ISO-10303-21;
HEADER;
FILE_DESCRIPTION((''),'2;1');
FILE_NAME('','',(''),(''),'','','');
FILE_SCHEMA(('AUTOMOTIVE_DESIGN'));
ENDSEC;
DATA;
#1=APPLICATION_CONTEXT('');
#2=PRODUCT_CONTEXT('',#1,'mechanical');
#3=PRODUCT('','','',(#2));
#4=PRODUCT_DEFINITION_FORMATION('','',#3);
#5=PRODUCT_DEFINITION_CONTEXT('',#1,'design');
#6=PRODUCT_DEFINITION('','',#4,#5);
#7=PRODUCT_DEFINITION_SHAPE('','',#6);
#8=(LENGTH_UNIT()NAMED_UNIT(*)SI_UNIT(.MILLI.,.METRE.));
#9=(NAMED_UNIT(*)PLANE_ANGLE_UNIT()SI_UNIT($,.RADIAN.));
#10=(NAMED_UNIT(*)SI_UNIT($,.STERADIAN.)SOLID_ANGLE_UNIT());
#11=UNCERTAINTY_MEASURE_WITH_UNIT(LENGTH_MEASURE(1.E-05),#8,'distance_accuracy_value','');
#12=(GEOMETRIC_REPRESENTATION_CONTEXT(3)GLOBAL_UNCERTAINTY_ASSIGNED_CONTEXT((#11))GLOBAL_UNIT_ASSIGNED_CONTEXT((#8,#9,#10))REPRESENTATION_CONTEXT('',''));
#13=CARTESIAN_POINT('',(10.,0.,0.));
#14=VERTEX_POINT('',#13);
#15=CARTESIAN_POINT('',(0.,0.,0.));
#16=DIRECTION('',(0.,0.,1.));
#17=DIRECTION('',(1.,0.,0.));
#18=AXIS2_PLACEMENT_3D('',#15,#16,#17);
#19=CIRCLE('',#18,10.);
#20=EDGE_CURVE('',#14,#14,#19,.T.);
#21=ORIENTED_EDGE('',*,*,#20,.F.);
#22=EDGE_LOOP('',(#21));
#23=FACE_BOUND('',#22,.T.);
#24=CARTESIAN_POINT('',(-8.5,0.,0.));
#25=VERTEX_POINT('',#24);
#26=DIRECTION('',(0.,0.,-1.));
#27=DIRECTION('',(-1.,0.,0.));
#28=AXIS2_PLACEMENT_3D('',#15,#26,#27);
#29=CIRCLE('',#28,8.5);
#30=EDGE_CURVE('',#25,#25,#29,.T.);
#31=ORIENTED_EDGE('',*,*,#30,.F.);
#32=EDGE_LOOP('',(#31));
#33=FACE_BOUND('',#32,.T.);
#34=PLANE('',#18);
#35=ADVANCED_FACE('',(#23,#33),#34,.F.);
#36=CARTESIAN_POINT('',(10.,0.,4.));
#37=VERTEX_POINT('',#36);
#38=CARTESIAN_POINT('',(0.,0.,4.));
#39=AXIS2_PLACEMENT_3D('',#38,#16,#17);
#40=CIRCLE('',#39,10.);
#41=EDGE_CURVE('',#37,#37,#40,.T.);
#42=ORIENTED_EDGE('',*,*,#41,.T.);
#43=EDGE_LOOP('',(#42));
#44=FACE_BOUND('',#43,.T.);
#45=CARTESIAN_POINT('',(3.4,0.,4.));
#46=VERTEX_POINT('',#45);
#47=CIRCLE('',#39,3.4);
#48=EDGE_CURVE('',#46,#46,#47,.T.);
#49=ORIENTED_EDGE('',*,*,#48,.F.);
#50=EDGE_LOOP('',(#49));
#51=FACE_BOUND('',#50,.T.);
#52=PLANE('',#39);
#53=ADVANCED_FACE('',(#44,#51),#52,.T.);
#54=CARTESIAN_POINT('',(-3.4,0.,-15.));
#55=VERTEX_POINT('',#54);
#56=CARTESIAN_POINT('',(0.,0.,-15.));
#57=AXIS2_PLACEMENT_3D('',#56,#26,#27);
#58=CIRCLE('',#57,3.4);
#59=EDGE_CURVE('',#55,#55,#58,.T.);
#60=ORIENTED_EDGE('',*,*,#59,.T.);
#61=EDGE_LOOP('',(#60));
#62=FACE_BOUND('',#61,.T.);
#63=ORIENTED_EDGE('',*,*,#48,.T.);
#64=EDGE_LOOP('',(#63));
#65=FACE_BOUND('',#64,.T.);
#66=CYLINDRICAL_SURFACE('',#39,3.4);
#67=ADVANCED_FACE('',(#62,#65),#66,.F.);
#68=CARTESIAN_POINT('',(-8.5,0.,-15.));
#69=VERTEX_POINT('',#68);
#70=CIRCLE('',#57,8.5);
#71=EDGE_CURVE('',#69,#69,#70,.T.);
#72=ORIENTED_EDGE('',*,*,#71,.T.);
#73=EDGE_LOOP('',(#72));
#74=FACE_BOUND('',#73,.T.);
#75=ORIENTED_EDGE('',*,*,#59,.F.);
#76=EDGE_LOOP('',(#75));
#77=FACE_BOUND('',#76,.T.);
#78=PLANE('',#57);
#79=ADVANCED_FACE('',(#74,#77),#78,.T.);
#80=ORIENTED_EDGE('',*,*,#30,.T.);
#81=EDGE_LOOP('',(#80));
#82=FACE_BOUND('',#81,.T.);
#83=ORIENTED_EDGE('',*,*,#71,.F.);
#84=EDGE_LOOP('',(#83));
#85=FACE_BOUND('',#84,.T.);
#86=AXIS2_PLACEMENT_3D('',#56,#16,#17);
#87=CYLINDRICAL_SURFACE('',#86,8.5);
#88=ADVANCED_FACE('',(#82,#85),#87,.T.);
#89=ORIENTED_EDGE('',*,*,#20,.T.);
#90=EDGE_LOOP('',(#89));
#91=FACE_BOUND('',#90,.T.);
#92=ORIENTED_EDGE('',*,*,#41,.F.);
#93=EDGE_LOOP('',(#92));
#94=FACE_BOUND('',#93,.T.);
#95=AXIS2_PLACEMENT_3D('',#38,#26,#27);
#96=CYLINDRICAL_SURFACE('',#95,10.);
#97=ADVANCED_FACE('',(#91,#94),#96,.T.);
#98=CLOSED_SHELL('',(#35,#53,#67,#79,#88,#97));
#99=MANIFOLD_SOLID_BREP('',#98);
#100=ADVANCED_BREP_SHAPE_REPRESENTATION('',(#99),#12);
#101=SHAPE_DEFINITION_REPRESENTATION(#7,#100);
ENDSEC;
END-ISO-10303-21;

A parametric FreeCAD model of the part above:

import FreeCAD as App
import Part
import Sketcher

doc = App.newDocument("Part")
body = doc.addObject("PartDesign::Body", "Body")

sketch1 = doc.addObject("Sketcher::SketchObject", "Sketch")
body.addObject(sketch1)
sketch1.AttachmentSupport = (doc.XY_Plane, [""])
sketch1.MapMode = "FlatFace"
sketch1.addGeometry(Part.Circle(App.Vector(0, 0, 0), App.Vector(0, 0, 1), 10), False)
sketch1.addConstraint([
    Sketcher.Constraint("Coincident", 0, 3, -1, 1),
    Sketcher.Constraint("Diameter", 0, 20.0),
])
pad1 = doc.addObject("PartDesign::Pad", "Pad")
body.addObject(pad1)
pad1.Profile = sketch1
pad1.Length = 4

sketch2 = doc.addObject("Sketcher::SketchObject", "Sketch001")
body.addObject(sketch2)
sketch2.AttachmentSupport = (doc.XY_Plane, [""])
sketch2.MapMode = "FlatFace"
sketch2.addGeometry(Part.Circle(App.Vector(0, 0, 0), App.Vector(0, 0, 1), 8.5), False)
sketch2.addConstraint([
    Sketcher.Constraint("Coincident", 0, 3, -1, 1),
    Sketcher.Constraint("Diameter", 0, 17.0),
])
pad2 = doc.addObject("PartDesign::Pad", "Pad001")
body.addObject(pad2)
pad2.Profile = sketch2
pad2.Length = 15
pad2.Reversed = True

sketch3 = doc.addObject("Sketcher::SketchObject", "Sketch002")
body.addObject(sketch3)
sketch3.AttachmentSupport = (doc.XY_Plane, [""])
sketch3.MapMode = "FlatFace"
sketch3.AttachmentOffset = App.Placement(App.Vector(0, 0, 4), App.Rotation())
sketch3.addGeometry(Part.Circle(App.Vector(0, 0, 0), App.Vector(0, 0, 1), 3.4), False)
sketch3.addConstraint([
    Sketcher.Constraint("Coincident", 0, 3, -1, 1),
    Sketcher.Constraint("Diameter", 0, 6.8),
])
doc.recompute()
hole = doc.addObject("PartDesign::Hole", "Hole")
body.addObject(hole)
hole.Profile = sketch3
hole.ThreadType = "None"
hole.Diameter = 6.8
hole.DepthType = "ThroughAll"

doc.recompute()
